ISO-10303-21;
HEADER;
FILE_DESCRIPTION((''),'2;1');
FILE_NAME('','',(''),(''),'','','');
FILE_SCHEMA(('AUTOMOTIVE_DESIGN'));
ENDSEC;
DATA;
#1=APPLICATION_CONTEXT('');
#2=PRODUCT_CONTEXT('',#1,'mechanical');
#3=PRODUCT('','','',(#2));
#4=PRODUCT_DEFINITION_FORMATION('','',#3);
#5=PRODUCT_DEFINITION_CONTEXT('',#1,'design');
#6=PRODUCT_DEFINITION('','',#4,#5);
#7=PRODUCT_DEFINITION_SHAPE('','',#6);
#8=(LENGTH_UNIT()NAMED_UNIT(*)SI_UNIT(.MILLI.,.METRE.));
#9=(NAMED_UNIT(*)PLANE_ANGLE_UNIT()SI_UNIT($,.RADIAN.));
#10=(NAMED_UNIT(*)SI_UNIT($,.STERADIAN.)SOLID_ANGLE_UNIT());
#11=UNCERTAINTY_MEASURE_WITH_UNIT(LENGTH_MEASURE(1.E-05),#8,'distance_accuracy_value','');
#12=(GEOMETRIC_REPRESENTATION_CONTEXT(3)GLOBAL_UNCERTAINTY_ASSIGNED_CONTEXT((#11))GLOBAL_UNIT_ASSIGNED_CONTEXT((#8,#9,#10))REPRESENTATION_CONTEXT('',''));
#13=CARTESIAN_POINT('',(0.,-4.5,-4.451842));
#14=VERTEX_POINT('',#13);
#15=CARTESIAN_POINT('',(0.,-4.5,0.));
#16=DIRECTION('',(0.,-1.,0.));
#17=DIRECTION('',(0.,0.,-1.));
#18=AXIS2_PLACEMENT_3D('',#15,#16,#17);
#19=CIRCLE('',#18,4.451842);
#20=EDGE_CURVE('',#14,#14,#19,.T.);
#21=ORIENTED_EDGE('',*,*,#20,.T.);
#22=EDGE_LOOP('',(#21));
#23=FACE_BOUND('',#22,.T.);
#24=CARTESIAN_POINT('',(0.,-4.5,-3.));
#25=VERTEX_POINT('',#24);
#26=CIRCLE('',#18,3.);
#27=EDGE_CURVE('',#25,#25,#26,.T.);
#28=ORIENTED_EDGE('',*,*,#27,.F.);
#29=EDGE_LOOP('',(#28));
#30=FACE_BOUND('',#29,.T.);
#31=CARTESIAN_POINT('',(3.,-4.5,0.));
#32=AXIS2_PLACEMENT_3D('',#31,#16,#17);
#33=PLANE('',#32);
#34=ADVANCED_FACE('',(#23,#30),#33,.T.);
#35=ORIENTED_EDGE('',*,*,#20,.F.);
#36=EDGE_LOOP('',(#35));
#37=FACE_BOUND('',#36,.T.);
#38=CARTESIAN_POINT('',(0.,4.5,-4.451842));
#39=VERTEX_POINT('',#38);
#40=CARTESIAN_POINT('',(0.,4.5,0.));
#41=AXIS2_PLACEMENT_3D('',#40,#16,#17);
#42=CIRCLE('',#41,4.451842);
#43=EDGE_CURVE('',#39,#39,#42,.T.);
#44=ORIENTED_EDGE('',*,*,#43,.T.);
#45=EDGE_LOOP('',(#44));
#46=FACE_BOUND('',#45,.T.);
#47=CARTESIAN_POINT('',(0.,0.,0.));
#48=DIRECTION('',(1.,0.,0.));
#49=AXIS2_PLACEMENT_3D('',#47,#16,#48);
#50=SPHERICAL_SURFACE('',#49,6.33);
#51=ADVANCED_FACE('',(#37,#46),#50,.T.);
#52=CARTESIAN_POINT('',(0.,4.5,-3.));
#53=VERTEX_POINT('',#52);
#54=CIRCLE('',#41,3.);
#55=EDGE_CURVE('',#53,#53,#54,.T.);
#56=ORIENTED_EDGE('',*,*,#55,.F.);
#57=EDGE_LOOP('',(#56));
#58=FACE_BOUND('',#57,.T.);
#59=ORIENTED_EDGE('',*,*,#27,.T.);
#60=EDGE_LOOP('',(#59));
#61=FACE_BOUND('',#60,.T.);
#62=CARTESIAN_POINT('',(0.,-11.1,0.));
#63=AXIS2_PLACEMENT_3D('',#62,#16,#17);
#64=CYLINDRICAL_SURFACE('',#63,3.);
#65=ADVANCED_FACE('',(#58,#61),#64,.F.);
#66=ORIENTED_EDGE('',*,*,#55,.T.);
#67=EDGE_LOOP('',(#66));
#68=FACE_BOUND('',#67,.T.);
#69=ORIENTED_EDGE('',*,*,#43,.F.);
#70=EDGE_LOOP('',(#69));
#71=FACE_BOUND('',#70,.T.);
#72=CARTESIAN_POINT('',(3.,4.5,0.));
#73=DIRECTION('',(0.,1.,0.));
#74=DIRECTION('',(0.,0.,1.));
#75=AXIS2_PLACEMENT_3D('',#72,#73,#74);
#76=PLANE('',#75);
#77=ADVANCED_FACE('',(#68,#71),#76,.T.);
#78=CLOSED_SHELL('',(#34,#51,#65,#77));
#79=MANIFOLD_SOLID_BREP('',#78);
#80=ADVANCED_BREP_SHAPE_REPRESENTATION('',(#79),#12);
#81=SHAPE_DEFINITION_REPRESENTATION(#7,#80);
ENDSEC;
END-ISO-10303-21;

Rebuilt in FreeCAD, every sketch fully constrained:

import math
import FreeCAD as App
import Part
import Sketcher
from FreeCAD import Vector

doc = App.newDocument("Part")
params = doc.addObject("Spreadsheet::Sheet", "Params")
for row, (alias, value) in enumerate([
    ("sketch1_height", "9 mm"),
    ("sketch1_radius", "6.33 mm"),
    ("revolution_angle", "360 deg"),
], start=1):
    params.set(f"A{row}", alias)
    params.set(f"B{row}", "=" + value)
    params.setAlias(f"B{row}", alias)

body = doc.addObject("PartDesign::Body", "Body")

# Sketch on XY plane
sketch1 = doc.addObject("Sketcher::SketchObject", "Sketch")
body.addObject(sketch1)
sketch1.AttachmentSupport = (doc.XY_Plane, [""])
sketch1.MapMode = "FlatFace"
sketch1.addGeometry([
    Part.LineSegment(Vector(3, 4.5, 0), Vector(3, -4.5, 0)),
    Part.LineSegment(Vector(3, -4.5, 0), Vector(4.451842, -4.5, 0)),
    Part.ArcOfCircle(Part.Circle(Vector(0, 0, 0), Vector(0, 0, 1), 6.33), math.radians(-45.308228), math.radians(45.308228)),
    Part.LineSegment(Vector(4.451842, 4.5, 0), Vector(3, 4.5, 0)),
], False)
sketch1.addConstraint([
    Sketcher.Constraint("Coincident", 0, 2, 1, 1),
    Sketcher.Constraint("Coincident", 1, 2, 2, 1),
    Sketcher.Constraint("Coincident", 2, 2, 3, 1),
    Sketcher.Constraint("Coincident", 3, 2, 0, 1),
    Sketcher.Constraint("Vertical", 0),
    Sketcher.Constraint("Horizontal", 1),
    Sketcher.Constraint("Horizontal", 3),
    Sketcher.Constraint("Coincident", 2, 3, -1, 1),
    Sketcher.Constraint("Vertical", 1, 2, 2, 2),
    Sketcher.Constraint("DistanceY", 0, 2, 0, 1, 9.0),
    Sketcher.Constraint("Radius", 2, 6.33),
    Sketcher.Constraint("DistanceX", -1, 1, 0, 2, 3.0),
])
sketch1.setExpression("Constraints[9]", "Params.sketch1_height")
sketch1.setExpression("Constraints[10]", "Params.sketch1_radius")
revolution = doc.addObject("PartDesign::Revolution", "Revolution")
body.addObject(revolution)
revolution.Profile = sketch1
revolution.ReferenceAxis = (sketch1, ["V_Axis"])
revolution.setExpression("Angle", "Params.revolution_angle")

doc.recompute()
